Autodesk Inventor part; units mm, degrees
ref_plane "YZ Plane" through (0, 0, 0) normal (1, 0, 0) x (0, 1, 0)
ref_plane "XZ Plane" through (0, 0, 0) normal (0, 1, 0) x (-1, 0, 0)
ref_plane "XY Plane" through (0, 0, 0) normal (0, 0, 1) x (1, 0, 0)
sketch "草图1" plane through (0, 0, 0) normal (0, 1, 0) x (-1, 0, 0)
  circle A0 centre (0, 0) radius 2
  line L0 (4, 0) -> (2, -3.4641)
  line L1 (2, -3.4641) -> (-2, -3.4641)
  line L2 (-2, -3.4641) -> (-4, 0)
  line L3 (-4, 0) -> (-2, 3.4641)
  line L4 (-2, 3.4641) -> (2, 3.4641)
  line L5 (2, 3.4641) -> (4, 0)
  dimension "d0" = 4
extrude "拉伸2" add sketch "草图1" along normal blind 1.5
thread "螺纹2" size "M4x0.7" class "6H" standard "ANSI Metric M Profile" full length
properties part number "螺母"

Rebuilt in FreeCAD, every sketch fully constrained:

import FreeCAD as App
import Part
import Sketcher
from FreeCAD import Vector


def add_polygon(sketch, points):
    """Adds a closed chain of lines whose ends are joined by coincident constraints."""
    first, n = sketch.GeometryCount, len(points)
    for a, b in zip(points, points[1:] + points[:1]):
        sketch.addGeometry(Part.LineSegment(App.Vector(*a, 0), App.Vector(*b, 0)), False)
    for i in range(n):
        sketch.addConstraint(Sketcher.Constraint("Coincident", first + i, 2, first + (i + 1) % n, 1))

doc = App.newDocument("Part")
body = doc.addObject("PartDesign::Body", "Body")

# Sketch on XZ plane
sketch1 = body.newObject("Sketcher::SketchObject", "Sketch")
sketch1.AttachmentSupport = (doc.getObject("XZ_Plane"), [""])
sketch1.MapMode = "FlatFace"
add_polygon(sketch1, [(-2, -3.5), (-4, 0), (-2, 3.5), (2, 3.5), (4, 0), (2, -3.5)])  # lines 0-5
sketch1.addGeometry(Part.Circle(Vector(0, 0, 0), Vector(0, 0, 1), 2), False)  # 6
sketch1.addConstraint([
    Sketcher.Constraint("Horizontal", 2),
    Sketcher.Constraint("Horizontal", 5),
    Sketcher.Constraint("Coincident", 6, 3, -1, 1),
    Sketcher.Constraint("Symmetric", 0, 2, 3, 2, -1, 1),
    Sketcher.Constraint("Symmetric", 1, 2, 4, 2, -1, 1),
    Sketcher.Constraint("PointOnObject", 0, 2, -1),
    Sketcher.Constraint("Parallel", 0, 3),
    Sketcher.Constraint("Vertical", 2, 2, 4, 2),
    Sketcher.Constraint("Diameter", 6, 4.0),
    Sketcher.Constraint("DistanceX", 2, 1, 2, 2, 4.0),
    Sketcher.Constraint("Distance", 0, 4.0),
    Sketcher.Constraint("DistanceX", 0, 2, -1, 1, 4.0),
])
pad1 = body.newObject("PartDesign::Pad", "Pad")
pad1.Profile = sketch1
pad1.Length = 1.5
pad1.Reversed = True

doc.recompute()
